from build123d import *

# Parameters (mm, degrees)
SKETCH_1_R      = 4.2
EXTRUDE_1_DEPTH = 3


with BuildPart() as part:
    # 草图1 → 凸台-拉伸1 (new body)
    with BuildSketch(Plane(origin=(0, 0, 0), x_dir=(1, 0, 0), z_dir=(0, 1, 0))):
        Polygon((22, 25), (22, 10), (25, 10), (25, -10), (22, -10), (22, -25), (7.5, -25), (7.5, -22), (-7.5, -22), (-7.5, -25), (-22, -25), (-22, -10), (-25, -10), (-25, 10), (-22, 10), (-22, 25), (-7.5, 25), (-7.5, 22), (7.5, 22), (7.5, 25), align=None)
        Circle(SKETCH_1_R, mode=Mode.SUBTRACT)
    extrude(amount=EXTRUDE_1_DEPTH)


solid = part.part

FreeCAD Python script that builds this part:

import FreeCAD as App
import Part
import Sketcher

doc = App.newDocument("Part")
body = doc.addObject("PartDesign::Body", "Body")

# Sketch on XZ plane
sketch1 = body.newObject("Sketcher::SketchObject", "Sketch")
sketch1.AttachmentSupport = (doc.getObject("XZ_Plane"), [""])
sketch1.MapMode = "FlatFace"
sketch1.addGeometry([
    Part.LineSegment(App.Vector(22, -10, 0), App.Vector(22, -25, 0)),  # 0
    Part.LineSegment(App.Vector(22, -25, 0), App.Vector(7.5, -25, 0)),  # 1
    Part.LineSegment(App.Vector(7.5, -25, 0), App.Vector(7.5, -22, 0)),  # 2
    Part.LineSegment(App.Vector(7.5, -22, 0), App.Vector(-7.5, -22, 0)),  # 3
    Part.LineSegment(App.Vector(-7.5, -22, 0), App.Vector(-7.5, -25, 0)),  # 4
    Part.LineSegment(App.Vector(-7.5, -25, 0), App.Vector(-22, -25, 0)),  # 5
    Part.LineSegment(App.Vector(-22, -25, 0), App.Vector(-22, -10, 0)),  # 6
    Part.LineSegment(App.Vector(-22, -10, 0), App.Vector(-25, -10, 0)),  # 7
    Part.LineSegment(App.Vector(-25, -10, 0), App.Vector(-25, 10, 0)),  # 8
    Part.LineSegment(App.Vector(-25, 10, 0), App.Vector(-22, 10, 0)),  # 9
    Part.LineSegment(App.Vector(-22, 10, 0), App.Vector(-22, 25, 0)),  # 10
    Part.LineSegment(App.Vector(-22, 25, 0), App.Vector(-7.5, 25, 0)),  # 11
    Part.LineSegment(App.Vector(-7.5, 25, 0), App.Vector(-7.5, 22, 0)),  # 12
    Part.LineSegment(App.Vector(-7.5, 22, 0), App.Vector(7.5, 22, 0)),  # 13
    Part.LineSegment(App.Vector(7.5, 22, 0), App.Vector(7.5, 25, 0)),  # 14
    Part.LineSegment(App.Vector(7.5, 25, 0), App.Vector(22, 25, 0)),  # 15
    Part.LineSegment(App.Vector(22, 25, 0), App.Vector(22, 10, 0)),  # 16
    Part.LineSegment(App.Vector(22, 10, 0), App.Vector(25, 10, 0)),  # 17
    Part.LineSegment(App.Vector(25, 10, 0), App.Vector(25, -10, 0)),  # 18
    Part.LineSegment(App.Vector(25, -10, 0), App.Vector(22, -10, 0)),  # 19
    Part.Circle(App.Vector(0, 0, 0), App.Vector(0, 0, 1), 4.2),  # 20
], False)
sketch1.addConstraint([
    Sketcher.Constraint("Coincident", 0, 2, 1, 1),
    Sketcher.Constraint("Coincident", 1, 2, 2, 1),
    Sketcher.Constraint("Coincident", 2, 2, 3, 1),
    Sketcher.Constraint("Coincident", 3, 2, 4, 1),
    Sketcher.Constraint("Coincident", 4, 2, 5, 1),
    Sketcher.Constraint("Coincident", 5, 2, 6, 1),
    Sketcher.Constraint("Coincident", 6, 2, 7, 1),
    Sketcher.Constraint("Coincident", 7, 2, 8, 1),
    Sketcher.Constraint("Coincident", 8, 2, 9, 1),
    Sketcher.Constraint("Coincident", 9, 2, 10, 1),
    Sketcher.Constraint("Coincident", 10, 2, 11, 1),
    Sketcher.Constraint("Coincident", 11, 2, 12, 1),
    Sketcher.Constraint("Coincident", 12, 2, 13, 1),
    Sketcher.Constraint("Coincident", 13, 2, 14, 1),
    Sketcher.Constraint("Coincident", 14, 2, 15, 1),
    Sketcher.Constraint("Coincident", 15, 2, 16, 1),
    Sketcher.Constraint("Coincident", 16, 2, 17, 1),
    Sketcher.Constraint("Coincident", 17, 2, 18, 1),
    Sketcher.Constraint("Coincident", 18, 2, 19, 1),
    Sketcher.Constraint("Coincident", 19, 2, 0, 1),
    Sketcher.Constraint("Vertical", 0),
    Sketcher.Constraint("Horizontal", 1),
    Sketcher.Constraint("Vertical", 2),
    Sketcher.Constraint("Horizontal", 3),
    Sketcher.Constraint("Vertical", 4),
    Sketcher.Constraint("Horizontal", 5),
    Sketcher.Constraint("Vertical", 6),
    Sketcher.Constraint("Horizontal", 7),
    Sketcher.Constraint("Vertical", 8),
    Sketcher.Constraint("Horizontal", 9),
    Sketcher.Constraint("Vertical", 10),
    Sketcher.Constraint("Horizontal", 11),
    Sketcher.Constraint("Vertical", 12),
    Sketcher.Constraint("Horizontal", 13),
    Sketcher.Constraint("Vertical", 14),
    Sketcher.Constraint("Horizontal", 15),
    Sketcher.Constraint("Vertical", 16),
    Sketcher.Constraint("Horizontal", 17),
    Sketcher.Constraint("Vertical", 18),
    Sketcher.Constraint("Horizontal", 19),
    Sketcher.Constraint("Coincident", 20, 3, -1, 1),
    Sketcher.Constraint("Symmetric", 0, 2, 10, 2, -1, 1),
    Sketcher.Constraint("Symmetric", 2, 2, 12, 2, -1, 1),
    Sketcher.Constraint("Symmetric", 4, 2, 14, 2, -1, 1),
    Sketcher.Constraint("Symmetric", 6, 2, 16, 2, -1, 1),
    Sketcher.Constraint("Symmetric", 8, 2, 18, 2, -1, 1),
    Sketcher.Constraint("Symmetric", 1, 2, 4, 2, -2),
    Sketcher.Constraint("Symmetric", 9, 2, 16, 2, -2),
    Sketcher.Constraint("Equal", 13, 0),
    Sketcher.Constraint("Equal", 19, 2),
    Sketcher.Constraint("Diameter", 20, 8.4),
    Sketcher.Constraint("DistanceX", 3, 2, 3, 1, 15.0),
    Sketcher.Constraint("DistanceX", 7, 2, 7, 1, 3.0),
    Sketcher.Constraint("DistanceY", 8, 1, 8, 2, 20.0),
    Sketcher.Constraint("DistanceX", 1, 2, 1, 1, 14.5),
])
pad1 = body.newObject("PartDesign::Pad", "Pad")
pad1.Profile = sketch1
pad1.Length = 3
pad1.Reversed = True

doc.recompute()
